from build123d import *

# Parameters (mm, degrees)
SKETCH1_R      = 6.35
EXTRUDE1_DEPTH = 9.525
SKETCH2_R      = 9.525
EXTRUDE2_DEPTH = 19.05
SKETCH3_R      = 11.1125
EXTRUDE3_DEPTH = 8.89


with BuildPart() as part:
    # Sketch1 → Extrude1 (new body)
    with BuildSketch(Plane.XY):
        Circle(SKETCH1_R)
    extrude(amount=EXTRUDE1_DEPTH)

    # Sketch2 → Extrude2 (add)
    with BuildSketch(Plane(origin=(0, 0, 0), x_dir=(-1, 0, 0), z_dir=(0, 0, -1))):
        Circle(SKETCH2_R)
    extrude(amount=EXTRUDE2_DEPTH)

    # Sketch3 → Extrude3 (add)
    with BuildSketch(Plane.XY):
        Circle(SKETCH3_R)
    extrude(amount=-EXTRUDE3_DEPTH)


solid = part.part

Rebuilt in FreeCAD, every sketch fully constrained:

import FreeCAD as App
import Part
import Sketcher
from FreeCAD import Vector
Q = App.Units.Quantity

doc = App.newDocument("Part")
body = doc.addObject("PartDesign::Body", "Body")

# Sketch on XY plane
sketch1 = doc.addObject("Sketcher::SketchObject", "Sketch")
body.addObject(sketch1)
sketch1.AttachmentSupport = (doc.XY_Plane, [""])
sketch1.MapMode = "FlatFace"
sketch1.addGeometry(Part.Circle(Vector(0, 0, 0), Vector(0, 0, 1), 6), False)
sketch1.addConstraint(Sketcher.Constraint("Coincident", 0, 3, -1, 1))
sketch1.addConstraint(Sketcher.Constraint("Diameter", 0, Q("0.5 in")))
pad1 = doc.addObject("PartDesign::Pad", "Pad")
body.addObject(pad1)
pad1.Profile = sketch1
pad1.Length = Q("0.375 in")

# Sketch on XY plane
sketch2 = doc.addObject("Sketcher::SketchObject", "Sketch001")
body.addObject(sketch2)
sketch2.AttachmentSupport = (doc.XY_Plane, [""])
sketch2.MapMode = "FlatFace"
sketch2.addGeometry(Part.Circle(Vector(0, 0, 0), Vector(0, 0, 1), 10), False)
sketch2.addConstraint(Sketcher.Constraint("Coincident", 0, 3, -1, 1))
sketch2.addConstraint(Sketcher.Constraint("Diameter", 0, Q("0.75 in")))
pad2 = doc.addObject("PartDesign::Pad", "Pad001")
body.addObject(pad2)
pad2.Profile = sketch2
pad2.Length = Q("0.75 in")
pad2.Reversed = True

# Sketch on XY plane
sketch3 = doc.addObject("Sketcher::SketchObject", "Sketch002")
body.addObject(sketch3)
sketch3.AttachmentSupport = (doc.XY_Plane, [""])
sketch3.MapMode = "FlatFace"
sketch3.addGeometry(Part.Circle(Vector(0, 0, 0), Vector(0, 0, 1), 11), False)
sketch3.addConstraint(Sketcher.Constraint("Coincident", 0, 3, -1, 1))
sketch3.addConstraint(Sketcher.Constraint("Diameter", 0, Q("0.875 in")))
pad3 = doc.addObject("PartDesign::Pad", "Pad002")
body.addObject(pad3)
pad3.Profile = sketch3
pad3.Length = Q("0.35 in")
pad3.Reversed = True

doc.recompute()
